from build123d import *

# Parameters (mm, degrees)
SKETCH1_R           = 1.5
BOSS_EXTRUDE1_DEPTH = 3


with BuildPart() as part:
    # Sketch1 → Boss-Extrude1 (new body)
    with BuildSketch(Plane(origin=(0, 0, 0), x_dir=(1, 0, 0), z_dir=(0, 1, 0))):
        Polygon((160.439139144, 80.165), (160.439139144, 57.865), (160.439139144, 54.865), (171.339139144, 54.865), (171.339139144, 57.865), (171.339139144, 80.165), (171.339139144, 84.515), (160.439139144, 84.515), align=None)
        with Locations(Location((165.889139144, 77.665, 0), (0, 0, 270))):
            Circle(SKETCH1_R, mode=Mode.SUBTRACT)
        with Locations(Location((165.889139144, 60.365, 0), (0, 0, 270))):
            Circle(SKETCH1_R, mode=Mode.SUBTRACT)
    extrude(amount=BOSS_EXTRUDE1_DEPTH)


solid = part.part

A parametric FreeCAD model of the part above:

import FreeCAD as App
import Part
import Sketcher

V = App.Vector

doc = App.newDocument("Part")
body = doc.addObject("PartDesign::Body", "Body")

sketch1 = body.newObject("Sketcher::SketchObject", "Sketch")
sketch1.AttachmentSupport = (doc.getObject("XZ_Plane"), [""])
sketch1.MapMode = "FlatFace"
sketch1.addGeometry([
    Part.LineSegment(V(160.4, -54.9, 0), V(171.3, -54.9, 0)),
    Part.LineSegment(V(171.3, -54.9, 0), V(171.3, -84.5, 0)),
    Part.LineSegment(V(171.3, -84.5, 0), V(160.4, -84.5, 0)),
    Part.LineSegment(V(160.4, -84.5, 0), V(160.4, -54.9, 0)),
    Part.Circle(V(165.9, -60.4, 0), V(0, 0, 1), 1.5),
    Part.Circle(V(165.9, -77.7, 0), V(0, 0, 1), 1.5),
], False)
sketch1.addConstraint([
    Sketcher.Constraint("Coincident", 0, 2, 1, 1),
    Sketcher.Constraint("Coincident", 1, 2, 2, 1),
    Sketcher.Constraint("Coincident", 2, 2, 3, 1),
    Sketcher.Constraint("Coincident", 3, 2, 0, 1),
    Sketcher.Constraint("Horizontal", 0),
    Sketcher.Constraint("Vertical", 1),
    Sketcher.Constraint("Horizontal", 2),
    Sketcher.Constraint("Vertical", 3),
    Sketcher.Constraint("Equal", 4, 5),
    Sketcher.Constraint("Vertical", 4, 3, 5, 3),
    Sketcher.Constraint("Diameter", 4, 3.0),
    Sketcher.Constraint("DistanceX", 0, 1, 0, 2, 10.9),
    Sketcher.Constraint("DistanceY", 1, 2, 1, 1, 29.65),
    Sketcher.Constraint("DistanceY", 5, 3, 4, 3, 17.3),
    Sketcher.Constraint("DistanceY", 4, 3, 0, 2, 5.5),
    Sketcher.Constraint("DistanceX", 4, 3, 0, 2, 5.45),
    Sketcher.Constraint("DistanceY", 4, 3, -1, 1, 60.365),
    Sketcher.Constraint("DistanceX", -1, 1, 4, 3, 165.889139),
])
pad1 = body.newObject("PartDesign::Pad", "Pad")
pad1.Profile = sketch1
pad1.Length = 3
pad1.Reversed = True

doc.recompute()
